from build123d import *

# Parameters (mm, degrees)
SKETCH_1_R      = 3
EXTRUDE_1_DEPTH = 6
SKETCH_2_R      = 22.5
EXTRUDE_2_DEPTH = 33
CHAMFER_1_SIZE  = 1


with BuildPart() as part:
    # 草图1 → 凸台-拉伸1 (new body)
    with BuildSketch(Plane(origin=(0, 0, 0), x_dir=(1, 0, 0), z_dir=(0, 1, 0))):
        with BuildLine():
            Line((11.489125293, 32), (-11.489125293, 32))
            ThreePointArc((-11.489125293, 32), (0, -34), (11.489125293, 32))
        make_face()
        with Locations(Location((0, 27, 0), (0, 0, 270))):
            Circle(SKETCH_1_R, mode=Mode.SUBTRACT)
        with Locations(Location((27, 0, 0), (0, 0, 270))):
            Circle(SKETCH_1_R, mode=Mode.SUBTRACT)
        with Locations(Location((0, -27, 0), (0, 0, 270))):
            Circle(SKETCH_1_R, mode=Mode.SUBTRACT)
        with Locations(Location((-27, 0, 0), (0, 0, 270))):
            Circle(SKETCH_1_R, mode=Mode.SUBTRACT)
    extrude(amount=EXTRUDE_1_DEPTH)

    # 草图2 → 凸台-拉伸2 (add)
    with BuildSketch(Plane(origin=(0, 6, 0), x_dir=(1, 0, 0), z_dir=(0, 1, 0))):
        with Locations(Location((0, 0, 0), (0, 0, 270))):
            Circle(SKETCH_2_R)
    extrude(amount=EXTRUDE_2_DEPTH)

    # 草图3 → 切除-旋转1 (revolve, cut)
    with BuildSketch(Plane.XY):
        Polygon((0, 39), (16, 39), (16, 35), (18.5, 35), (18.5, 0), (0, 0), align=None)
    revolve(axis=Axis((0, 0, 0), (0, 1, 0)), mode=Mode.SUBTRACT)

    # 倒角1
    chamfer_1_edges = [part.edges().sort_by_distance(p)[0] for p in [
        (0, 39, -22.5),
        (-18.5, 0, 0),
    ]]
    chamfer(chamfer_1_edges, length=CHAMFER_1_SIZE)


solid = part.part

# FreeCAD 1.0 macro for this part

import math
import FreeCAD as App
import Part
import Sketcher


def edges_at(feature, points):
    """Names of the edges that pass closest to the given points."""
    edges = feature.Shape.Edges
    near = lambda p: min(range(len(edges)), key=lambda i: edges[i].distToShape(Part.Vertex(*p))[0])
    return sorted({f"Edge{near(p) + 1}" for p in points})


def add_polygon(sketch, points):
    """Adds a closed chain of lines whose ends are joined by coincident constraints."""
    first, n = sketch.GeometryCount, len(points)
    for a, b in zip(points, points[1:] + points[:1]):
        sketch.addGeometry(Part.LineSegment(App.Vector(*a, 0), App.Vector(*b, 0)), False)
    for i in range(n):
        sketch.addConstraint(Sketcher.Constraint("Coincident", first + i, 2, first + (i + 1) % n, 1))

doc = App.newDocument("Part")
params = doc.addObject("Spreadsheet::Sheet", "Params")
for row, (alias, value) in enumerate([
    ("sketch1_diameter", "6 mm"),
    ("sketch1_radius", "34 mm"),
    ("pad1_length", "6 mm"),
    ("sketch2_diameter", "45 mm"),
    ("pad2_length", "33 mm"),
    ("sketch3_width", "16 mm"),
    ("sketch3_height", "39 mm"),
    ("sketch3_height2", "35 mm"),
    ("sketch3_width2", "18.5 mm"),
    ("groove_angle", "360 deg"),
    ("chamfer_size", "1 mm"),
], start=1):
    params.set(f"A{row}", alias)
    params.set(f"B{row}", "=" + value)
    params.setAlias(f"B{row}", alias)

body = doc.addObject("PartDesign::Body", "Body")

sketch1 = doc.addObject("Sketcher::SketchObject", "Sketch")
body.addObject(sketch1)
sketch1.AttachmentSupport = (doc.XZ_Plane, [""])
sketch1.MapMode = "FlatFace"
sketch1.addGeometry([
    Part.LineSegment(App.Vector(11.5, -32, 0), App.Vector(-11.5, -32, 0)),
    Part.ArcOfCircle(Part.Circle(App.Vector(0, 0, 0), App.Vector(0, 0, 1), 34), math.radians(-70), math.radians(250)),
    Part.Circle(App.Vector(0, 27, 0), App.Vector(0, 0, 1), 3),
    Part.Circle(App.Vector(-27, 0, 0), App.Vector(0, 0, 1), 3),
    Part.Circle(App.Vector(27, 0, 0), App.Vector(0, 0, 1), 3),
    Part.Circle(App.Vector(0, -27, 0), App.Vector(0, 0, 1), 3),
], False)
sketch1.addConstraint([
    Sketcher.Constraint("Coincident", 0, 1, 1, 1),
    Sketcher.Constraint("Coincident", 1, 2, 0, 2),
    Sketcher.Constraint("Horizontal", 0),
    Sketcher.Constraint("Coincident", 1, 3, -1, 1),
    Sketcher.Constraint("Equal", 2, 3),
    Sketcher.Constraint("Equal", 3, 4),
    Sketcher.Constraint("Equal", 4, 5),
    Sketcher.Constraint("Symmetric", 3, 3, 4, 3, -1, 1),
    Sketcher.Constraint("Symmetric", 2, 3, 5, 3, -1, 1),
    Sketcher.Constraint("PointOnObject", 2, 3, -2),
    Sketcher.Constraint("PointOnObject", 3, 3, -1),
    Sketcher.Constraint("Diameter", 2, 6.0),
    Sketcher.Constraint("Radius", 1, 34.0),
    Sketcher.Constraint("DistanceY", -1, 1, 2, 3, 27.0),
    Sketcher.Constraint("DistanceX", 3, 3, -1, 1, 27.0),
    Sketcher.Constraint("DistanceY", 0, 1, -1, 1, 32.0),
])
sketch1.setExpression("Constraints[11]", "Params.sketch1_diameter")
sketch1.setExpression("Constraints[12]", "Params.sketch1_radius")
pad1 = doc.addObject("PartDesign::Pad", "Pad")
body.addObject(pad1)
pad1.Profile = sketch1
pad1.setExpression("Length", "Params.pad1_length")
pad1.Reversed = True

sketch2 = doc.addObject("Sketcher::SketchObject", "Sketch001")
body.addObject(sketch2)
sketch2.AttachmentSupport = (doc.XZ_Plane, [""])
sketch2.MapMode = "FlatFace"
sketch2.AttachmentOffset = App.Placement(App.Vector(0, 0, -6), App.Rotation())
sketch2.addGeometry(Part.Circle(App.Vector(0, 0, 0), App.Vector(0, 0, 1), 22), False)
sketch2.addConstraint([
    Sketcher.Constraint("Coincident", 0, 3, -1, 1),
    Sketcher.Constraint("Diameter", 0, 45.0),
])
sketch2.setExpression("Constraints[1]", "Params.sketch2_diameter")
pad2 = doc.addObject("PartDesign::Pad", "Pad001")
body.addObject(pad2)
pad2.Profile = sketch2
pad2.setExpression("Length", "Params.pad2_length")
pad2.Reversed = True

sketch3 = doc.addObject("Sketcher::SketchObject", "Sketch002")
body.addObject(sketch3)
sketch3.AttachmentSupport = (doc.XY_Plane, [""])
sketch3.MapMode = "FlatFace"
add_polygon(sketch3, [(16, 39), (0, 39), (0, 0), (18.5, 0), (18.5, 35), (16, 35)])
sketch3.addConstraint([
    Sketcher.Constraint("Horizontal", 0),
    Sketcher.Constraint("Vertical", 1),
    Sketcher.Constraint("Horizontal", 2),
    Sketcher.Constraint("Vertical", 3),
    Sketcher.Constraint("Horizontal", 4),
    Sketcher.Constraint("Vertical", 5),
    Sketcher.Constraint("Coincident", 1, 2, -1, 1),
    Sketcher.Constraint("DistanceX", 0, 2, 0, 1, 16.0),
    Sketcher.Constraint("DistanceY", 1, 2, 1, 1, 39.0),
    Sketcher.Constraint("DistanceY", 3, 1, 3, 2, 35.0),
    Sketcher.Constraint("DistanceX", 2, 1, 2, 2, 18.5),
])
sketch3.setExpression("Constraints[13]", "Params.sketch3_width")
sketch3.setExpression("Constraints[14]", "Params.sketch3_height")
sketch3.setExpression("Constraints[15]", "Params.sketch3_height2")
sketch3.setExpression("Constraints[16]", "Params.sketch3_width2")
groove = doc.addObject("PartDesign::Groove", "Groove")
body.addObject(groove)
groove.Profile = sketch3
groove.ReferenceAxis = (sketch3, ["V_Axis"])
groove.setExpression("Angle", "Params.groove_angle")
doc.recompute()

chamfer = doc.addObject("PartDesign::Chamfer", "Chamfer")
body.addObject(chamfer)
chamfer.Base = (groove, edges_at(groove, [(0, 39, -22.5), (-18.5, 0, 0)]))
chamfer.setExpression("Size", "Params.chamfer_size")

doc.recompute()
